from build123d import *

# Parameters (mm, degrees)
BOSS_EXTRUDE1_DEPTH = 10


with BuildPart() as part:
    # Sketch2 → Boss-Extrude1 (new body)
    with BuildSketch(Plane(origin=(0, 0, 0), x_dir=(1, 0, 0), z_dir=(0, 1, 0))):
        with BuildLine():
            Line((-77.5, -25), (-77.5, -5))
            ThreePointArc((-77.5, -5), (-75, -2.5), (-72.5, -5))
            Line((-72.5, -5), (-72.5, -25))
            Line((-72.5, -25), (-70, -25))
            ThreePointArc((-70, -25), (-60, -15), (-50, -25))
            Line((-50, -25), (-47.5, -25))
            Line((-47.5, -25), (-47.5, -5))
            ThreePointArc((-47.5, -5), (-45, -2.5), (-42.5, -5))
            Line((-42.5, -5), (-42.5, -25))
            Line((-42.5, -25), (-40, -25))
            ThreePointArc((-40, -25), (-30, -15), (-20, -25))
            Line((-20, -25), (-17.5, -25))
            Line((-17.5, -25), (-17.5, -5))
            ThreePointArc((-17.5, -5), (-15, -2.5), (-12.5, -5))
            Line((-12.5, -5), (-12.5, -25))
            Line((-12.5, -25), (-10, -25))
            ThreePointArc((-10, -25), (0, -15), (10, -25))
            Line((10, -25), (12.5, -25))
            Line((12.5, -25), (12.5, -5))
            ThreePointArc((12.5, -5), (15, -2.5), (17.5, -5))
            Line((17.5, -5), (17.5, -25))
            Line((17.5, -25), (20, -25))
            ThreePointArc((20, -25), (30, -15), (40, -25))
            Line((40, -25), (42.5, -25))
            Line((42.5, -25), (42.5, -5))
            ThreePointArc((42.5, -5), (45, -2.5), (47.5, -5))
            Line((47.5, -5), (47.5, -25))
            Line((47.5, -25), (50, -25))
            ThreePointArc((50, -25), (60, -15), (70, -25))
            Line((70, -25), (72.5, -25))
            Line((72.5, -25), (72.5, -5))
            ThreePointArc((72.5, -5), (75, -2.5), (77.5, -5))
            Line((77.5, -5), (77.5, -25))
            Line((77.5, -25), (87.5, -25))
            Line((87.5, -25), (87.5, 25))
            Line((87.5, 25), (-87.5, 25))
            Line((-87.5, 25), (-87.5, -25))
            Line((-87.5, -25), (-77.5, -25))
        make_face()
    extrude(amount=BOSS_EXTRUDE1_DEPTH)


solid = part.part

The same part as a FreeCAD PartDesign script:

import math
import FreeCAD as App
import Part
import Sketcher

doc = App.newDocument("Part")
body = doc.addObject("PartDesign::Body", "Body")

# Sketch on XZ plane
sketch1 = doc.addObject("Sketcher::SketchObject", "Sketch")
body.addObject(sketch1)
sketch1.AttachmentSupport = (doc.XZ_Plane, [""])
sketch1.MapMode = "FlatFace"
sketch1.addGeometry(Part.LineSegment(App.Vector(-77.5, 25, 0), App.Vector(-77.5, 5, 0)), False)
sketch1.addGeometry(Part.ArcOfCircle(Part.Circle(App.Vector(-75, 5, 0), App.Vector(0, 0, 1), 2.5), math.radians(180), math.radians(360)), False)
sketch1.addGeometry(Part.LineSegment(App.Vector(-72.5, 5, 0), App.Vector(-72.5, 25, 0)), False)
sketch1.addGeometry(Part.LineSegment(App.Vector(-72.5, 25, 0), App.Vector(-70, 25, 0)), False)
sketch1.addGeometry(Part.ArcOfCircle(Part.Circle(App.Vector(-60, 25, 0), App.Vector(0, 0, 1), 10), math.radians(180), math.radians(360)), False)
sketch1.addGeometry(Part.LineSegment(App.Vector(-50, 25, 0), App.Vector(-47.5, 25, 0)), False)
sketch1.addGeometry(Part.LineSegment(App.Vector(-47.5, 25, 0), App.Vector(-47.5, 5, 0)), False)
sketch1.addGeometry(Part.ArcOfCircle(Part.Circle(App.Vector(-45, 5, 0), App.Vector(0, 0, 1), 2.5), math.radians(180), math.radians(360)), False)
sketch1.addGeometry(Part.LineSegment(App.Vector(-42.5, 5, 0), App.Vector(-42.5, 25, 0)), False)
sketch1.addGeometry(Part.LineSegment(App.Vector(-42.5, 25, 0), App.Vector(-40, 25, 0)), False)
sketch1.addGeometry(Part.ArcOfCircle(Part.Circle(App.Vector(-30, 25, 0), App.Vector(0, 0, 1), 10), math.radians(180), math.radians(360)), False)
sketch1.addGeometry(Part.LineSegment(App.Vector(-20, 25, 0), App.Vector(-17.5, 25, 0)), False)
sketch1.addGeometry(Part.LineSegment(App.Vector(-17.5, 25, 0), App.Vector(-17.5, 5, 0)), False)
sketch1.addGeometry(Part.ArcOfCircle(Part.Circle(App.Vector(-15, 5, 0), App.Vector(0, 0, 1), 2.5), math.radians(180), math.radians(360)), False)
sketch1.addGeometry(Part.LineSegment(App.Vector(-12.5, 5, 0), App.Vector(-12.5, 25, 0)), False)
sketch1.addGeometry(Part.LineSegment(App.Vector(-12.5, 25, 0), App.Vector(-10, 25, 0)), False)
sketch1.addGeometry(Part.ArcOfCircle(Part.Circle(App.Vector(0, 25, 0), App.Vector(0, 0, 1), 10), math.radians(180), math.radians(360)), False)
sketch1.addGeometry(Part.LineSegment(App.Vector(10, 25, 0), App.Vector(12.5, 25, 0)), False)
sketch1.addGeometry(Part.LineSegment(App.Vector(12.5, 25, 0), App.Vector(12.5, 5, 0)), False)
sketch1.addGeometry(Part.ArcOfCircle(Part.Circle(App.Vector(15, 5, 0), App.Vector(0, 0, 1), 2.5), math.radians(180), math.radians(360)), False)
sketch1.addGeometry(Part.LineSegment(App.Vector(17.5, 5, 0), App.Vector(17.5, 25, 0)), False)
sketch1.addGeometry(Part.LineSegment(App.Vector(17.5, 25, 0), App.Vector(20, 25, 0)), False)
sketch1.addGeometry(Part.ArcOfCircle(Part.Circle(App.Vector(30, 25, 0), App.Vector(0, 0, 1), 10), math.radians(180), math.radians(360)), False)
sketch1.addGeometry(Part.LineSegment(App.Vector(40, 25, 0), App.Vector(42.5, 25, 0)), False)
sketch1.addGeometry(Part.LineSegment(App.Vector(42.5, 25, 0), App.Vector(42.5, 5, 0)), False)
sketch1.addGeometry(Part.ArcOfCircle(Part.Circle(App.Vector(45, 5, 0), App.Vector(0, 0, 1), 2.5), math.radians(180), math.radians(360)), False)
sketch1.addGeometry(Part.LineSegment(App.Vector(47.5, 5, 0), App.Vector(47.5, 25, 0)), False)
sketch1.addGeometry(Part.LineSegment(App.Vector(47.5, 25, 0), App.Vector(50, 25, 0)), False)
sketch1.addGeometry(Part.ArcOfCircle(Part.Circle(App.Vector(60, 25, 0), App.Vector(0, 0, 1), 10), math.radians(180), math.radians(360)), False)
sketch1.addGeometry(Part.LineSegment(App.Vector(70, 25, 0), App.Vector(72.5, 25, 0)), False)
sketch1.addGeometry(Part.LineSegment(App.Vector(72.5, 25, 0), App.Vector(72.5, 5, 0)), False)
sketch1.addGeometry(Part.ArcOfCircle(Part.Circle(App.Vector(75, 5, 0), App.Vector(0, 0, 1), 2.5), math.radians(180), math.radians(360)), False)
sketch1.addGeometry(Part.LineSegment(App.Vector(77.5, 5, 0), App.Vector(77.5, 25, 0)), False)
sketch1.addGeometry(Part.LineSegment(App.Vector(77.5, 25, 0), App.Vector(87.5, 25, 0)), False)
sketch1.addGeometry(Part.LineSegment(App.Vector(87.5, 25, 0), App.Vector(87.5, -25, 0)), False)
sketch1.addGeometry(Part.LineSegment(App.Vector(87.5, -25, 0), App.Vector(-87.5, -25, 0)), False)
sketch1.addGeometry(Part.LineSegment(App.Vector(-87.5, -25, 0), App.Vector(-87.5, 25, 0)), False)
sketch1.addGeometry(Part.LineSegment(App.Vector(-87.5, 25, 0), App.Vector(-77.5, 25, 0)), False)
sketch1.addConstraint(Sketcher.Constraint("Tangent", 0, 2, 1, 1))
sketch1.addConstraint(Sketcher.Constraint("Tangent", 1, 2, 2, 1))
sketch1.addConstraint(Sketcher.Constraint("Coincident", 2, 2, 3, 1))
sketch1.addConstraint(Sketcher.Constraint("Coincident", 3, 2, 4, 1))
sketch1.addConstraint(Sketcher.Constraint("Coincident", 4, 2, 5, 1))
sketch1.addConstraint(Sketcher.Constraint("Coincident", 5, 2, 6, 1))
sketch1.addConstraint(Sketcher.Constraint("Tangent", 6, 2, 7, 1))
sketch1.addConstraint(Sketcher.Constraint("Tangent", 7, 2, 8, 1))
sketch1.addConstraint(Sketcher.Constraint("Coincident", 8, 2, 9, 1))
sketch1.addConstraint(Sketcher.Constraint("Coincident", 9, 2, 10, 1))
sketch1.addConstraint(Sketcher.Constraint("Coincident", 10, 2, 11, 1))
sketch1.addConstraint(Sketcher.Constraint("Coincident", 11, 2, 12, 1))
sketch1.addConstraint(Sketcher.Constraint("Tangent", 12, 2, 13, 1))
sketch1.addConstraint(Sketcher.Constraint("Tangent", 13, 2, 14, 1))
sketch1.addConstraint(Sketcher.Constraint("Coincident", 14, 2, 15, 1))
sketch1.addConstraint(Sketcher.Constraint("Coincident", 15, 2, 16, 1))
sketch1.addConstraint(Sketcher.Constraint("Coincident", 16, 2, 17, 1))
sketch1.addConstraint(Sketcher.Constraint("Coincident", 17, 2, 18, 1))
sketch1.addConstraint(Sketcher.Constraint("Tangent", 18, 2, 19, 1))
sketch1.addConstraint(Sketcher.Constraint("Tangent", 19, 2, 20, 1))
sketch1.addConstraint(Sketcher.Constraint("Coincident", 20, 2, 21, 1))
sketch1.addConstraint(Sketcher.Constraint("Coincident", 21, 2, 22, 1))
sketch1.addConstraint(Sketcher.Constraint("Coincident", 22, 2, 23, 1))
sketch1.addConstraint(Sketcher.Constraint("Coincident", 23, 2, 24, 1))
sketch1.addConstraint(Sketcher.Constraint("Tangent", 24, 2, 25, 1))
sketch1.addConstraint(Sketcher.Constraint("Tangent", 25, 2, 26, 1))
sketch1.addConstraint(Sketcher.Constraint("Coincident", 26, 2, 27, 1))
sketch1.addConstraint(Sketcher.Constraint("Coincident", 27, 2, 28, 1))
sketch1.addConstraint(Sketcher.Constraint("Coincident", 28, 2, 29, 1))
sketch1.addConstraint(Sketcher.Constraint("Coincident", 29, 2, 30, 1))
sketch1.addConstraint(Sketcher.Constraint("Tangent", 30, 2, 31, 1))
sketch1.addConstraint(Sketcher.Constraint("Tangent", 31, 2, 32, 1))
sketch1.addConstraint(Sketcher.Constraint("Coincident", 32, 2, 33, 1))
sketch1.addConstraint(Sketcher.Constraint("Coincident", 33, 2, 34, 1))
sketch1.addConstraint(Sketcher.Constraint("Coincident", 34, 2, 35, 1))
sketch1.addConstraint(Sketcher.Constraint("Coincident", 35, 2, 36, 1))
sketch1.addConstraint(Sketcher.Constraint("Coincident", 36, 2, 37, 1))
sketch1.addConstraint(Sketcher.Constraint("Coincident", 37, 2, 0, 1))
sketch1.addConstraint(Sketcher.Constraint("Vertical", 0))
sketch1.addConstraint(Sketcher.Constraint("Vertical", 2))
sketch1.addConstraint(Sketcher.Constraint("Horizontal", 3))
sketch1.addConstraint(Sketcher.Constraint("Horizontal", 5))
sketch1.addConstraint(Sketcher.Constraint("Vertical", 6))
sketch1.addConstraint(Sketcher.Constraint("Vertical", 8))
sketch1.addConstraint(Sketcher.Constraint("Horizontal", 9))
sketch1.addConstraint(Sketcher.Constraint("Horizontal", 11))
sketch1.addConstraint(Sketcher.Constraint("Vertical", 12))
sketch1.addConstraint(Sketcher.Constraint("Vertical", 14))
sketch1.addConstraint(Sketcher.Constraint("Horizontal", 15))
sketch1.addConstraint(Sketcher.Constraint("Horizontal", 17))
sketch1.addConstraint(Sketcher.Constraint("Vertical", 18))
sketch1.addConstraint(Sketcher.Constraint("Vertical", 20))
sketch1.addConstraint(Sketcher.Constraint("Horizontal", 21))
sketch1.addConstraint(Sketcher.Constraint("Horizontal", 23))
sketch1.addConstraint(Sketcher.Constraint("Vertical", 24))
sketch1.addConstraint(Sketcher.Constraint("Vertical", 26))
sketch1.addConstraint(Sketcher.Constraint("Horizontal", 27))
sketch1.addConstraint(Sketcher.Constraint("Horizontal", 29))
sketch1.addConstraint(Sketcher.Constraint("Vertical", 30))
sketch1.addConstraint(Sketcher.Constraint("Vertical", 32))
sketch1.addConstraint(Sketcher.Constraint("Horizontal", 33))
sketch1.addConstraint(Sketcher.Constraint("Vertical", 34))
sketch1.addConstraint(Sketcher.Constraint("Horizontal", 35))
sketch1.addConstraint(Sketcher.Constraint("Vertical", 36))
sketch1.addConstraint(Sketcher.Constraint("Horizontal", 37))
sketch1.addConstraint(Sketcher.Constraint("Equal", 1, 7))
sketch1.addConstraint(Sketcher.Constraint("Equal", 4, 10))
sketch1.addConstraint(Sketcher.Constraint("Equal", 7, 13))
sketch1.addConstraint(Sketcher.Constraint("Equal", 10, 16))
sketch1.addConstraint(Sketcher.Constraint("Equal", 13, 19))
sketch1.addConstraint(Sketcher.Constraint("Equal", 16, 22))
sketch1.addConstraint(Sketcher.Constraint("Equal", 19, 25))
sketch1.addConstraint(Sketcher.Constraint("Equal", 22, 28))
sketch1.addConstraint(Sketcher.Constraint("Equal", 25, 31))
sketch1.addConstraint(Sketcher.Constraint("Symmetric", 33, 2, 35, 2, -1, 1))
sketch1.addConstraint(Sketcher.Constraint("Symmetric", 13, 3, 19, 3, -2))
sketch1.addConstraint(Sketcher.Constraint("Symmetric", 10, 3, 22, 3, -2))
sketch1.addConstraint(Sketcher.Constraint("Symmetric", 7, 3, 25, 3, -2))
sketch1.addConstraint(Sketcher.Constraint("Symmetric", 4, 3, 28, 3, -2))
sketch1.addConstraint(Sketcher.Constraint("Symmetric", 1, 3, 31, 3, -2))
sketch1.addConstraint(Sketcher.Constraint("Symmetric", 15, 2, 16, 2, -2))
sketch1.addConstraint(Sketcher.Constraint("Horizontal", 1, 3, 7, 3))
sketch1.addConstraint(Sketcher.Constraint("Horizontal", 4, 3, 10, 3))
sketch1.addConstraint(Sketcher.Constraint("Horizontal", 7, 3, 13, 3))
sketch1.addConstraint(Sketcher.Constraint("Horizontal", 10, 3, 16, 3))
sketch1.addConstraint(Sketcher.Constraint("Horizontal", 28, 3, 2, 2))
sketch1.addConstraint(Sketcher.Constraint("Horizontal", 3, 2, 4, 2))
sketch1.addConstraint(Sketcher.Constraint("Horizontal", 5, 2, 8, 2))
sketch1.addConstraint(Sketcher.Constraint("Horizontal", 9, 2, 10, 2))
sketch1.addConstraint(Sketcher.Constraint("Horizontal", 11, 2, 14, 2))
sketch1.addConstraint(Sketcher.Constraint("Horizontal", 17, 2, 20, 2))
sketch1.addConstraint(Sketcher.Constraint("Horizontal", 21, 2, 22, 2))
sketch1.addConstraint(Sketcher.Constraint("Horizontal", 23, 2, 26, 2))
sketch1.addConstraint(Sketcher.Constraint("Horizontal", 27, 2, 28, 2))
sketch1.addConstraint(Sketcher.Constraint("Horizontal", 29, 2, 32, 2))
sketch1.addConstraint(Sketcher.Constraint("Horizontal", 33, 2, 36, 2))
sketch1.addConstraint(Sketcher.Constraint("Equal", 3, 5))
sketch1.addConstraint(Sketcher.Constraint("Equal", 5, 9))
sketch1.addConstraint(Sketcher.Constraint("Equal", 9, 11))
sketch1.addConstraint(Sketcher.Constraint("Equal", 11, 15))
sketch1.addConstraint(Sketcher.Constraint("Radius", 4, 10.0))
sketch1.addConstraint(Sketcher.Constraint("Radius", 1, 2.5))
sketch1.addConstraint(Sketcher.Constraint("DistanceX", 33, 1, 33, 2, 10.0))
sketch1.addConstraint(Sketcher.Constraint("DistanceX", 35, 2, 35, 1, 175.0))
sketch1.addConstraint(Sketcher.Constraint("DistanceY", 0, 2, 0, 1, 20.0))
sketch1.addConstraint(Sketcher.Constraint("DistanceY", 34, 2, 34, 1, 50.0))
pad1 = doc.addObject("PartDesign::Pad", "Pad")
body.addObject(pad1)
pad1.Profile = sketch1
pad1.Length = 10
pad1.Reversed = True

doc.recompute()
